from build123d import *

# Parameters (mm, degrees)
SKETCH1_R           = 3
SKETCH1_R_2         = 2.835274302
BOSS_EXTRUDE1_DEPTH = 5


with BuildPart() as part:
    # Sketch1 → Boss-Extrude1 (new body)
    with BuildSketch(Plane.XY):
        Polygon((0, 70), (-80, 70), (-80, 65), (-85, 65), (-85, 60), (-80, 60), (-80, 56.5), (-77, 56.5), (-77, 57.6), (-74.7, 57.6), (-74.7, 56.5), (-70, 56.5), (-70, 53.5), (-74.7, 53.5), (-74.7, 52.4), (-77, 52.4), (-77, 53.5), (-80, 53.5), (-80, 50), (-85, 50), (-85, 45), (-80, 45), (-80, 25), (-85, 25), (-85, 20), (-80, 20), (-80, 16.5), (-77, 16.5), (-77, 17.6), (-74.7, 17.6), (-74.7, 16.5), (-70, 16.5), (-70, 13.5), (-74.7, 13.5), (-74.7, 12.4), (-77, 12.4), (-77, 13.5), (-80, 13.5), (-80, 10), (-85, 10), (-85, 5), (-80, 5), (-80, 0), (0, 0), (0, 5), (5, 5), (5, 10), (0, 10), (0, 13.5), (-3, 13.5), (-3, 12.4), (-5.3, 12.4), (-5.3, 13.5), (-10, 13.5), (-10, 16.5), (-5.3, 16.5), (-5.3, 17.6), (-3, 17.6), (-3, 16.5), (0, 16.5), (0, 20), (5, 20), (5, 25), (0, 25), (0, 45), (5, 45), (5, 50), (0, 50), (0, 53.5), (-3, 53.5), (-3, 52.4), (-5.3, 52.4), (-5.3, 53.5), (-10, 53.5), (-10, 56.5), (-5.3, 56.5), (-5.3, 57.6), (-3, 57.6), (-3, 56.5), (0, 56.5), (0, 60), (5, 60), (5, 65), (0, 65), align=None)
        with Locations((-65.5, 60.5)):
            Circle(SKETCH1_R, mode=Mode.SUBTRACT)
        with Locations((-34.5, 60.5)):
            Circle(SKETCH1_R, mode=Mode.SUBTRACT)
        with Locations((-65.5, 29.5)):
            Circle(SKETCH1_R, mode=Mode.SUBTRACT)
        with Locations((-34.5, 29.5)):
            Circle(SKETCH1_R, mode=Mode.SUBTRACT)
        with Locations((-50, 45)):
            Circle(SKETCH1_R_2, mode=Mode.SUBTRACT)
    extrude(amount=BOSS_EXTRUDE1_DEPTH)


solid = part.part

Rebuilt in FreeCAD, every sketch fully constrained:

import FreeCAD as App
import Part
import Sketcher
from FreeCAD import Vector
Q = App.Units.Quantity


def add_polygon(sketch, points):
    """Adds a closed chain of lines whose ends are joined by coincident constraints."""
    first, n = sketch.GeometryCount, len(points)
    for a, b in zip(points, points[1:] + points[:1]):
        sketch.addGeometry(Part.LineSegment(App.Vector(*a, 0), App.Vector(*b, 0)), False)
    for i in range(n):
        sketch.addConstraint(Sketcher.Constraint("Coincident", first + i, 2, first + (i + 1) % n, 1))

doc = App.newDocument("Part")
body = doc.addObject("PartDesign::Body", "Body")

# Sketch on XY plane
sketch1 = body.newObject("Sketcher::SketchObject", "Sketch")
sketch1.AttachmentSupport = (doc.getObject("XY_Plane"), [""])
sketch1.MapMode = "FlatFace"
add_polygon(sketch1, [(0, 70), (-80, 70), (-80, 65), (-85, 65), (-85, 60), (-80, 60), (-80, 56.5), (-77, 56.5), (-77, 57.6), (-74.7, 57.6), (-74.7, 56.5), (-70, 56.5), (-70, 53.5), (-74.7, 53.5), (-74.7, 52.4), (-77, 52.4), (-77, 53.5), (-80, 53.5), (-80, 50), (-85, 50), (-85, 45), (-80, 45), (-80, 25), (-85, 25), (-85, 20), (-80, 20), (-80, 16.5), (-77, 16.5), (-77, 17.6), (-74.7, 17.6), (-74.7, 16.5), (-70, 16.5), (-70, 13.5), (-74.7, 13.5), (-74.7, 12.4), (-77, 12.4), (-77, 13.5), (-80, 13.5), (-80, 10), (-85, 10), (-85, 5), (-80, 5), (-80, 0), (0, 0), (0, 5), (5, 5), (5, 10), (0, 10), (0, 13.5), (-3, 13.5), (-3, 12.4), (-5.3, 12.4), (-5.3, 13.5), (-10, 13.5), (-10, 16.5), (-5.3, 16.5), (-5.3, 17.6), (-3, 17.6), (-3, 16.5), (0, 16.5), (0, 20), (5, 20), (5, 25), (0, 25), (0, 45), (5, 45), (5, 50), (0, 50), (0, 53.5), (-3, 53.5), (-3, 52.4), (-5.3, 52.4), (-5.3, 53.5), (-10, 53.5), (-10, 56.5), (-5.3, 56.5), (-5.3, 57.6), (-3, 57.6), (-3, 56.5), (0, 56.5), (0, 60), (5, 60), (5, 65), (0, 65)])  # lines 0-83
sketch1.addGeometry(Part.Circle(Vector(-65.5, 29.5, 0), Vector(0, 0, 1), 3), False)  # 84
sketch1.addGeometry(Part.Circle(Vector(-34.5, 29.5, 0), Vector(0, 0, 1), 3), False)  # 85
sketch1.addGeometry(Part.Circle(Vector(-65.5, 60.5, 0), Vector(0, 0, 1), 3), False)  # 86
sketch1.addGeometry(Part.Circle(Vector(-50, 45, 0), Vector(0, 0, 1), 2.8), False)  # 87
sketch1.addGeometry(Part.Circle(Vector(-34.5, 60.5, 0), Vector(0, 0, 1), 3), False)  # 88
sketch1.addConstraint(Sketcher.Constraint("Horizontal", 0))
sketch1.addConstraint(Sketcher.Constraint("Vertical", 1))
sketch1.addConstraint(Sketcher.Constraint("Horizontal", 2))
sketch1.addConstraint(Sketcher.Constraint("Vertical", 3))
sketch1.addConstraint(Sketcher.Constraint("Horizontal", 4))
sketch1.addConstraint(Sketcher.Constraint("Vertical", 5))
sketch1.addConstraint(Sketcher.Constraint("Horizontal", 6))
sketch1.addConstraint(Sketcher.Constraint("Vertical", 7))
sketch1.addConstraint(Sketcher.Constraint("Horizontal", 8))
sketch1.addConstraint(Sketcher.Constraint("Vertical", 9))
sketch1.addConstraint(Sketcher.Constraint("Horizontal", 10))
sketch1.addConstraint(Sketcher.Constraint("Vertical", 11))
sketch1.addConstraint(Sketcher.Constraint("Horizontal", 12))
sketch1.addConstraint(Sketcher.Constraint("Vertical", 13))
sketch1.addConstraint(Sketcher.Constraint("Horizontal", 14))
sketch1.addConstraint(Sketcher.Constraint("Vertical", 15))
sketch1.addConstraint(Sketcher.Constraint("Horizontal", 16))
sketch1.addConstraint(Sketcher.Constraint("Vertical", 17))
sketch1.addConstraint(Sketcher.Constraint("Horizontal", 18))
sketch1.addConstraint(Sketcher.Constraint("Vertical", 19))
sketch1.addConstraint(Sketcher.Constraint("Horizontal", 20))
sketch1.addConstraint(Sketcher.Constraint("Vertical", 21))
sketch1.addConstraint(Sketcher.Constraint("Horizontal", 22))
sketch1.addConstraint(Sketcher.Constraint("Vertical", 23))
sketch1.addConstraint(Sketcher.Constraint("Horizontal", 24))
sketch1.addConstraint(Sketcher.Constraint("Vertical", 25))
sketch1.addConstraint(Sketcher.Constraint("Horizontal", 26))
sketch1.addConstraint(Sketcher.Constraint("Vertical", 27))
sketch1.addConstraint(Sketcher.Constraint("Horizontal", 28))
sketch1.addConstraint(Sketcher.Constraint("Vertical", 29))
sketch1.addConstraint(Sketcher.Constraint("Horizontal", 30))
sketch1.addConstraint(Sketcher.Constraint("Vertical", 31))
sketch1.addConstraint(Sketcher.Constraint("Horizontal", 32))
sketch1.addConstraint(Sketcher.Constraint("Vertical", 33))
sketch1.addConstraint(Sketcher.Constraint("Horizontal", 34))
sketch1.addConstraint(Sketcher.Constraint("Vertical", 35))
sketch1.addConstraint(Sketcher.Constraint("Horizontal", 36))
sketch1.addConstraint(Sketcher.Constraint("Vertical", 37))
sketch1.addConstraint(Sketcher.Constraint("Horizontal", 38))
sketch1.addConstraint(Sketcher.Constraint("Vertical", 39))
sketch1.addConstraint(Sketcher.Constraint("Horizontal", 40))
sketch1.addConstraint(Sketcher.Constraint("Vertical", 41))
sketch1.addConstraint(Sketcher.Constraint("Horizontal", 42))
sketch1.addConstraint(Sketcher.Constraint("Vertical", 43))
sketch1.addConstraint(Sketcher.Constraint("Horizontal", 44))
sketch1.addConstraint(Sketcher.Constraint("Vertical", 45))
sketch1.addConstraint(Sketcher.Constraint("Horizontal", 46))
sketch1.addConstraint(Sketcher.Constraint("Vertical", 47))
sketch1.addConstraint(Sketcher.Constraint("Horizontal", 48))
sketch1.addConstraint(Sketcher.Constraint("Vertical", 49))
sketch1.addConstraint(Sketcher.Constraint("Horizontal", 50))
sketch1.addConstraint(Sketcher.Constraint("Vertical", 51))
sketch1.addConstraint(Sketcher.Constraint("Horizontal", 52))
sketch1.addConstraint(Sketcher.Constraint("Vertical", 53))
sketch1.addConstraint(Sketcher.Constraint("Horizontal", 54))
sketch1.addConstraint(Sketcher.Constraint("Vertical", 55))
sketch1.addConstraint(Sketcher.Constraint("Horizontal", 56))
sketch1.addConstraint(Sketcher.Constraint("Vertical", 57))
sketch1.addConstraint(Sketcher.Constraint("Horizontal", 58))
sketch1.addConstraint(Sketcher.Constraint("Vertical", 59))
sketch1.addConstraint(Sketcher.Constraint("Horizontal", 60))
sketch1.addConstraint(Sketcher.Constraint("Vertical", 61))
sketch1.addConstraint(Sketcher.Constraint("Horizontal", 62))
sketch1.addConstraint(Sketcher.Constraint("Vertical", 63))
sketch1.addConstraint(Sketcher.Constraint("Horizontal", 64))
sketch1.addConstraint(Sketcher.Constraint("Vertical", 65))
sketch1.addConstraint(Sketcher.Constraint("Horizontal", 66))
sketch1.addConstraint(Sketcher.Constraint("Vertical", 67))
sketch1.addConstraint(Sketcher.Constraint("Horizontal", 68))
sketch1.addConstraint(Sketcher.Constraint("Vertical", 69))
sketch1.addConstraint(Sketcher.Constraint("Horizontal", 70))
sketch1.addConstraint(Sketcher.Constraint("Vertical", 71))
sketch1.addConstraint(Sketcher.Constraint("Horizontal", 72))
sketch1.addConstraint(Sketcher.Constraint("Vertical", 73))
sketch1.addConstraint(Sketcher.Constraint("Horizontal", 74))
sketch1.addConstraint(Sketcher.Constraint("Vertical", 75))
sketch1.addConstraint(Sketcher.Constraint("Horizontal", 76))
sketch1.addConstraint(Sketcher.Constraint("Vertical", 77))
sketch1.addConstraint(Sketcher.Constraint("Horizontal", 78))
sketch1.addConstraint(Sketcher.Constraint("Vertical", 79))
sketch1.addConstraint(Sketcher.Constraint("Horizontal", 80))
sketch1.addConstraint(Sketcher.Constraint("Vertical", 81))
sketch1.addConstraint(Sketcher.Constraint("Horizontal", 82))
sketch1.addConstraint(Sketcher.Constraint("Vertical", 83))
sketch1.addConstraint(Sketcher.Constraint("Coincident", 42, 2, -1, 1))
sketch1.addConstraint(Sketcher.Constraint("Equal", 84, 85))
sketch1.addConstraint(Sketcher.Constraint("Equal", 85, 86))
sketch1.addConstraint(Sketcher.Constraint("Equal", 86, 88))
sketch1.addConstraint(Sketcher.Constraint("PointOnObject", 46, 2, -2))
sketch1.addConstraint(Sketcher.Constraint("PointOnObject", 58, 2, -2))
sketch1.addConstraint(Sketcher.Constraint("PointOnObject", 62, 2, -2))
sketch1.addConstraint(Sketcher.Constraint("PointOnObject", 66, 2, -2))
sketch1.addConstraint(Sketcher.Constraint("PointOnObject", 78, 2, -2))
sketch1.addConstraint(Sketcher.Constraint("PointOnObject", 82, 2, -2))
sketch1.addConstraint(Sketcher.Constraint("Horizontal", 84, 3, 85, 3))
sketch1.addConstraint(Sketcher.Constraint("Horizontal", 86, 3, 88, 3))
sketch1.addConstraint(Sketcher.Constraint("Horizontal", 6, 2, 9, 2))
sketch1.addConstraint(Sketcher.Constraint("Horizontal", 12, 2, 15, 2))
sketch1.addConstraint(Sketcher.Constraint("Horizontal", 87, 3, 19, 2))
sketch1.addConstraint(Sketcher.Constraint("Horizontal", 26, 2, 29, 2))
sketch1.addConstraint(Sketcher.Constraint("Horizontal", 32, 2, 35, 2))
sketch1.addConstraint(Sketcher.Constraint("Horizontal", 40, 2, 43, 2))
sketch1.addConstraint(Sketcher.Constraint("Horizontal", 38, 2, 45, 2))
sketch1.addConstraint(Sketcher.Constraint("Horizontal", 36, 2, 47, 2))
sketch1.addConstraint(Sketcher.Constraint("Horizontal", 34, 2, 49, 2))
sketch1.addConstraint(Sketcher.Constraint("Horizontal", 48, 2, 51, 2))
sketch1.addConstraint(Sketcher.Constraint("Horizontal", 30, 2, 53, 2))
sketch1.addConstraint(Sketcher.Constraint("Horizontal", 28, 2, 55, 2))
sketch1.addConstraint(Sketcher.Constraint("Horizontal", 54, 2, 57, 2))
sketch1.addConstraint(Sketcher.Constraint("Horizontal", 24, 2, 59, 2))
sketch1.addConstraint(Sketcher.Constraint("Horizontal", 22, 2, 61, 2))
sketch1.addConstraint(Sketcher.Constraint("Horizontal", 20, 2, 63, 2))
sketch1.addConstraint(Sketcher.Constraint("Horizontal", 18, 2, 65, 2))
sketch1.addConstraint(Sketcher.Constraint("Horizontal", 16, 2, 67, 2))
sketch1.addConstraint(Sketcher.Constraint("Horizontal", 14, 2, 69, 2))
sketch1.addConstraint(Sketcher.Constraint("Horizontal", 68, 2, 71, 2))
sketch1.addConstraint(Sketcher.Constraint("Horizontal", 10, 2, 73, 2))
sketch1.addConstraint(Sketcher.Constraint("Horizontal", 8, 2, 75, 2))
sketch1.addConstraint(Sketcher.Constraint("Horizontal", 74, 2, 77, 2))
sketch1.addConstraint(Sketcher.Constraint("Horizontal", 4, 2, 79, 2))
sketch1.addConstraint(Sketcher.Constraint("Horizontal", 2, 2, 81, 2))
sketch1.addConstraint(Sketcher.Constraint("Vertical", 84, 3, 86, 3))
sketch1.addConstraint(Sketcher.Constraint("Vertical", 85, 3, 88, 3))
sketch1.addConstraint(Sketcher.Constraint("Vertical", 1, 2, 4, 2))
sketch1.addConstraint(Sketcher.Constraint("Vertical", 9, 2, 12, 2))
sketch1.addConstraint(Sketcher.Constraint("Vertical", 7, 2, 14, 2))
sketch1.addConstraint(Sketcher.Constraint("Vertical", 5, 2, 16, 2))
sketch1.addConstraint(Sketcher.Constraint("Vertical", 3, 2, 18, 2))
sketch1.addConstraint(Sketcher.Constraint("Vertical", 17, 2, 20, 2))
sketch1.addConstraint(Sketcher.Constraint("Vertical", 19, 2, 22, 2))
sketch1.addConstraint(Sketcher.Constraint("Vertical", 21, 2, 24, 2))
sketch1.addConstraint(Sketcher.Constraint("Vertical", 15, 2, 26, 2))
sketch1.addConstraint(Sketcher.Constraint("Vertical", 13, 2, 28, 2))
sketch1.addConstraint(Sketcher.Constraint("Vertical", 11, 2, 30, 2))
sketch1.addConstraint(Sketcher.Constraint("Vertical", 29, 2, 32, 2))
sketch1.addConstraint(Sketcher.Constraint("Vertical", 27, 2, 34, 2))
sketch1.addConstraint(Sketcher.Constraint("Vertical", 25, 2, 36, 2))
sketch1.addConstraint(Sketcher.Constraint("Vertical", 23, 2, 38, 2))
sketch1.addConstraint(Sketcher.Constraint("Vertical", 37, 2, 40, 2))
sketch1.addConstraint(Sketcher.Constraint("Vertical", 51, 2, 54, 2))
sketch1.addConstraint(Sketcher.Constraint("Vertical", 49, 2, 56, 2))
sketch1.addConstraint(Sketcher.Constraint("Vertical", 45, 2, 60, 2))
sketch1.addConstraint(Sketcher.Constraint("Vertical", 61, 2, 64, 2))
sketch1.addConstraint(Sketcher.Constraint("Vertical", 57, 2, 68, 2))
sketch1.addConstraint(Sketcher.Constraint("Vertical", 55, 2, 70, 2))
sketch1.addConstraint(Sketcher.Constraint("Vertical", 53, 2, 72, 2))
sketch1.addConstraint(Sketcher.Constraint("Vertical", 71, 2, 74, 2))
sketch1.addConstraint(Sketcher.Constraint("Vertical", 69, 2, 76, 2))
sketch1.addConstraint(Sketcher.Constraint("Vertical", 65, 2, 80, 2))
sketch1.addConstraint(Sketcher.Constraint("Equal", 40, 44))
sketch1.addConstraint(Sketcher.Constraint("Equal", 36, 48))
sketch1.addConstraint(Sketcher.Constraint("Equal", 34, 50))
sketch1.addConstraint(Sketcher.Constraint("Equal", 32, 52))
sketch1.addConstraint(Sketcher.Constraint("Equal", 82, 1))
sketch1.addConstraint(Sketcher.Constraint("Equal", 1, 3))
sketch1.addConstraint(Sketcher.Constraint("Equal", 78, 11))
sketch1.addConstraint(Sketcher.Constraint("Equal", 9, 13))
sketch1.addConstraint(Sketcher.Constraint("Equal", 5, 17))
sketch1.addConstraint(Sketcher.Constraint("Equal", 3, 19))
sketch1.addConstraint(Sketcher.Constraint("Equal", 19, 23))
sketch1.addConstraint(Sketcher.Constraint("Equal", 17, 25))
sketch1.addConstraint(Sketcher.Constraint("Equal", 15, 27))
sketch1.addConstraint(Sketcher.Constraint("Equal", 11, 31))
sketch1.addConstraint(Sketcher.Constraint("Equal", 29, 33))
sketch1.addConstraint(Sketcher.Constraint("Equal", 25, 37))
sketch1.addConstraint(Sketcher.Constraint("Equal", 23, 39))
sketch1.addConstraint(Sketcher.Constraint("Equal", 39, 41))
sketch1.addConstraint(Sketcher.Constraint("Diameter", 84, Q("6 mm")))
sketch1.addConstraint(Sketcher.Constraint("DistanceX", 0, 2, 0, 1, Q("80 mm")))
sketch1.addConstraint(Sketcher.Constraint("DistanceX", 2, 2, 2, 1, Q("5 mm")))
sketch1.addConstraint(Sketcher.Constraint("DistanceX", 6, 1, 6, 2, Q("3 mm")))
sketch1.addConstraint(Sketcher.Constraint("DistanceY", 21, 2, 21, 1, Q("20 mm")))
sketch1.addConstraint(Sketcher.Constraint("DistanceX", 8, 1, 8, 2, Q("2.3 mm")))
sketch1.addConstraint(Sketcher.Constraint("DistanceX", 10, 1, 10, 2, Q("4.7 mm")))
sketch1.addConstraint(Sketcher.Constraint("DistanceY", 5, 2, 5, 1, Q("3.5 mm")))
sketch1.addConstraint(Sketcher.Constraint("DistanceY", 7, 1, 7, 2, Q("1.1 mm")))
sketch1.addConstraint(Sketcher.Constraint("DistanceX", 87, 3, -1, 1, Q("50 mm")))
sketch1.addConstraint(Sketcher.Constraint("DistanceX", 84, 3, -1, 1, Q("65.5 mm")))
sketch1.addConstraint(Sketcher.Constraint("DistanceY", -1, 1, 84, 3, Q("29.5 mm")))
sketch1.addConstraint(Sketcher.Constraint("DistanceX", 85, 3, -1, 1, Q("34.5 mm")))
sketch1.addConstraint(Sketcher.Constraint("DistanceY", -1, 1, 86, 3, Q("60.5 mm")))
sketch1.addConstraint(Sketcher.Constraint("Diameter", 87, Q("5.670549 mm")))
pad1 = body.newObject("PartDesign::Pad", "Pad")
pad1.Profile = sketch1
pad1.Length = 5

doc.recompute()
